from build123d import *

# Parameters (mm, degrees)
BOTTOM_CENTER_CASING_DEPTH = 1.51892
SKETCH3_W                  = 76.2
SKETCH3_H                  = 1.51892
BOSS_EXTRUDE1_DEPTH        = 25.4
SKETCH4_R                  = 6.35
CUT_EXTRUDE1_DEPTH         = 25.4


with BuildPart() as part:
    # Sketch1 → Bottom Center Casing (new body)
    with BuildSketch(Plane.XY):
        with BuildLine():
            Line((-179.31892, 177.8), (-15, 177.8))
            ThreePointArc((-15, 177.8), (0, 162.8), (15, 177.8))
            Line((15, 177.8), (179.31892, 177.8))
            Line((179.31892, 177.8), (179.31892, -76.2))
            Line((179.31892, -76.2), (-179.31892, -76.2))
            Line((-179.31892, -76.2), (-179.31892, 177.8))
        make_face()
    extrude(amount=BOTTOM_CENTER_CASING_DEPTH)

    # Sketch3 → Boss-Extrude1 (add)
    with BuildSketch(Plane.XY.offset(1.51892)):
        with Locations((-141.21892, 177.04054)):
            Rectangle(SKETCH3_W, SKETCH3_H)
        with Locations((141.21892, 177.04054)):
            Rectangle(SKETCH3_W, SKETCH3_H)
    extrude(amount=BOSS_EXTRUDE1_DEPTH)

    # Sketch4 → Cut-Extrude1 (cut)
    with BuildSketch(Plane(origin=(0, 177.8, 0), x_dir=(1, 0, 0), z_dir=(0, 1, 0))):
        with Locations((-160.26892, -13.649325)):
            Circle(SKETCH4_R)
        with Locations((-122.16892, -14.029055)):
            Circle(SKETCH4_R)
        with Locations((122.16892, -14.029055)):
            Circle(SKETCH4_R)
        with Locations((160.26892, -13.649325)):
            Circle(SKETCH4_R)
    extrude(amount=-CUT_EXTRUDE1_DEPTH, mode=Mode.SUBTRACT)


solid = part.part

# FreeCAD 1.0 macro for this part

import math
import FreeCAD as App
import Part
import Sketcher
from FreeCAD import Vector
Q = App.Units.Quantity


def add_polygon(sketch, points):
    """Adds a closed chain of lines whose ends are joined by coincident constraints."""
    first, n = sketch.GeometryCount, len(points)
    for a, b in zip(points, points[1:] + points[:1]):
        sketch.addGeometry(Part.LineSegment(App.Vector(*a, 0), App.Vector(*b, 0)), False)
    for i in range(n):
        sketch.addConstraint(Sketcher.Constraint("Coincident", first + i, 2, first + (i + 1) % n, 1))

doc = App.newDocument("Part")
body = doc.addObject("PartDesign::Body", "Body")

# Sketch on XY plane
sketch1 = body.newObject("Sketcher::SketchObject", "Sketch")
sketch1.AttachmentSupport = (doc.getObject("XY_Plane"), [""])
sketch1.MapMode = "FlatFace"
sketch1.addGeometry([
    Part.LineSegment(Vector(-15, 178, 0), Vector(-179, 178, 0)),  # 0
    Part.LineSegment(Vector(-179, 178, 0), Vector(-179, -76, 0)),  # 1
    Part.LineSegment(Vector(-179, -76, 0), Vector(179, -76, 0)),  # 2
    Part.LineSegment(Vector(179, -76, 0), Vector(179, 178, 0)),  # 3
    Part.LineSegment(Vector(179, 178, 0), Vector(15, 178, 0)),  # 4
    Part.ArcOfCircle(Part.Circle(Vector(0, 178, 0), Vector(0, 0, 1), 15), math.radians(180), math.radians(360)),  # 5
], False)
sketch1.addConstraint([
    Sketcher.Constraint("Coincident", 0, 2, 1, 1),
    Sketcher.Constraint("Coincident", 1, 2, 2, 1),
    Sketcher.Constraint("Coincident", 2, 2, 3, 1),
    Sketcher.Constraint("Coincident", 3, 2, 4, 1),
    Sketcher.Constraint("Coincident", 4, 2, 5, 2),
    Sketcher.Constraint("Coincident", 5, 1, 0, 1),
    Sketcher.Constraint("Horizontal", 0),
    Sketcher.Constraint("Vertical", 1),
    Sketcher.Constraint("Horizontal", 2),
    Sketcher.Constraint("Vertical", 3),
    Sketcher.Constraint("Horizontal", 4),
    Sketcher.Constraint("Symmetric", 0, 2, 3, 2, -2),
    Sketcher.Constraint("PointOnObject", 5, 3, -2),
    Sketcher.Constraint("Horizontal", 5, 3, 0, 2),
    Sketcher.Constraint("DistanceY", 1, 2, 1, 1, Q("10 in")),
    Sketcher.Constraint("DistanceY", -1, 1, 5, 3, Q("7 in")),
    Sketcher.Constraint("Radius", 5, 15.0),
    Sketcher.Constraint("DistanceX", 2, 1, 2, 2, Q("14.1196 in")),
])
pad1 = body.newObject("PartDesign::Pad", "Pad")
pad1.Profile = sketch1
pad1.Length = Q("0.0598 in")

# Sketch on XY plane
sketch2 = body.newObject("Sketcher::SketchObject", "Sketch001")
sketch2.AttachmentSupport = (doc.getObject("XY_Plane"), [""])
sketch2.MapMode = "FlatFace"
sketch2.AttachmentOffset = App.Placement(Vector(0, 0, 0.0598 * 25.4), App.Rotation())
add_polygon(sketch2, [(-179.3, 177.8), (-179.3, 176.3), (-103.1, 176.3), (-103.1, 177.8)])  # lines 0-3
add_polygon(sketch2, [(103.1, 177.8), (103.1, 176.3), (179.3, 176.3), (179.3, 177.8)])  # lines 4-7
sketch2.addConstraint([
    Sketcher.Constraint("Vertical", 0),
    Sketcher.Constraint("Horizontal", 1),
    Sketcher.Constraint("Vertical", 2),
    Sketcher.Constraint("Horizontal", 3),
    Sketcher.Constraint("Vertical", 4),
    Sketcher.Constraint("Horizontal", 5),
    Sketcher.Constraint("Vertical", 6),
    Sketcher.Constraint("Horizontal", 7),
    Sketcher.Constraint("Symmetric", 1, 2, 4, 2, -2),
    Sketcher.Constraint("Symmetric", 3, 2, 6, 2, -2),
    Sketcher.Constraint("DistanceX", 1, 1, 1, 2, Q("3 in")),
    Sketcher.Constraint("DistanceY", -1, 1, 2, 2, Q("7 in")),
    Sketcher.Constraint("DistanceY", 0, 2, 0, 1, Q("0.0598 in")),
    Sketcher.Constraint("DistanceX", 0, 2, -1, 1, Q("7.0598 in")),
])
pad2 = body.newObject("PartDesign::Pad", "Pad001")
pad2.Profile = sketch2
pad2.Length = Q("1 in")

# Sketch on XZ plane
sketch3 = body.newObject("Sketcher::SketchObject", "Sketch002")
sketch3.AttachmentSupport = (doc.getObject("XZ_Plane"), [""])
sketch3.MapMode = "FlatFace"
sketch3.AttachmentOffset = App.Placement(Vector(0, 0, -7 * 25.4), App.Rotation())
sketch3.addGeometry([
    Part.Circle(Vector(-160, 14, 0), Vector(0, 0, 1), 6),
    Part.Circle(Vector(-122, 14, 0), Vector(0, 0, 1), 6),
    Part.Circle(Vector(122, 14, 0), Vector(0, 0, 1), 6),
    Part.Circle(Vector(160, 14, 0), Vector(0, 0, 1), 6),
], False)
sketch3.addConstraint([
    Sketcher.Constraint("Equal", 0, 1),
    Sketcher.Constraint("Equal", 1, 2),
    Sketcher.Constraint("Equal", 2, 3),
    Sketcher.Constraint("Symmetric", 1, 3, 2, 3, -2),
    Sketcher.Constraint("Symmetric", 0, 3, 3, 3, -2),
    Sketcher.Constraint("Diameter", 0, Q("0.5 in")),
    Sketcher.Constraint("DistanceX", 0, 3, 1, 3, Q("1.5 in")),
    Sketcher.Constraint("DistanceX", 0, 3, -1, 1, Q("6.3098 in")),
    Sketcher.Constraint("DistanceY", 0, 3, 1, 3, 0.37973),
    Sketcher.Constraint("DistanceY", -1, 1, 0, 3, 13.649325),
])
pocket1 = body.newObject("PartDesign::Pocket", "Pocket")
pocket1.Profile = sketch3
pocket1.Length = Q("1 in")
pocket1.Reversed = True

doc.recompute()
